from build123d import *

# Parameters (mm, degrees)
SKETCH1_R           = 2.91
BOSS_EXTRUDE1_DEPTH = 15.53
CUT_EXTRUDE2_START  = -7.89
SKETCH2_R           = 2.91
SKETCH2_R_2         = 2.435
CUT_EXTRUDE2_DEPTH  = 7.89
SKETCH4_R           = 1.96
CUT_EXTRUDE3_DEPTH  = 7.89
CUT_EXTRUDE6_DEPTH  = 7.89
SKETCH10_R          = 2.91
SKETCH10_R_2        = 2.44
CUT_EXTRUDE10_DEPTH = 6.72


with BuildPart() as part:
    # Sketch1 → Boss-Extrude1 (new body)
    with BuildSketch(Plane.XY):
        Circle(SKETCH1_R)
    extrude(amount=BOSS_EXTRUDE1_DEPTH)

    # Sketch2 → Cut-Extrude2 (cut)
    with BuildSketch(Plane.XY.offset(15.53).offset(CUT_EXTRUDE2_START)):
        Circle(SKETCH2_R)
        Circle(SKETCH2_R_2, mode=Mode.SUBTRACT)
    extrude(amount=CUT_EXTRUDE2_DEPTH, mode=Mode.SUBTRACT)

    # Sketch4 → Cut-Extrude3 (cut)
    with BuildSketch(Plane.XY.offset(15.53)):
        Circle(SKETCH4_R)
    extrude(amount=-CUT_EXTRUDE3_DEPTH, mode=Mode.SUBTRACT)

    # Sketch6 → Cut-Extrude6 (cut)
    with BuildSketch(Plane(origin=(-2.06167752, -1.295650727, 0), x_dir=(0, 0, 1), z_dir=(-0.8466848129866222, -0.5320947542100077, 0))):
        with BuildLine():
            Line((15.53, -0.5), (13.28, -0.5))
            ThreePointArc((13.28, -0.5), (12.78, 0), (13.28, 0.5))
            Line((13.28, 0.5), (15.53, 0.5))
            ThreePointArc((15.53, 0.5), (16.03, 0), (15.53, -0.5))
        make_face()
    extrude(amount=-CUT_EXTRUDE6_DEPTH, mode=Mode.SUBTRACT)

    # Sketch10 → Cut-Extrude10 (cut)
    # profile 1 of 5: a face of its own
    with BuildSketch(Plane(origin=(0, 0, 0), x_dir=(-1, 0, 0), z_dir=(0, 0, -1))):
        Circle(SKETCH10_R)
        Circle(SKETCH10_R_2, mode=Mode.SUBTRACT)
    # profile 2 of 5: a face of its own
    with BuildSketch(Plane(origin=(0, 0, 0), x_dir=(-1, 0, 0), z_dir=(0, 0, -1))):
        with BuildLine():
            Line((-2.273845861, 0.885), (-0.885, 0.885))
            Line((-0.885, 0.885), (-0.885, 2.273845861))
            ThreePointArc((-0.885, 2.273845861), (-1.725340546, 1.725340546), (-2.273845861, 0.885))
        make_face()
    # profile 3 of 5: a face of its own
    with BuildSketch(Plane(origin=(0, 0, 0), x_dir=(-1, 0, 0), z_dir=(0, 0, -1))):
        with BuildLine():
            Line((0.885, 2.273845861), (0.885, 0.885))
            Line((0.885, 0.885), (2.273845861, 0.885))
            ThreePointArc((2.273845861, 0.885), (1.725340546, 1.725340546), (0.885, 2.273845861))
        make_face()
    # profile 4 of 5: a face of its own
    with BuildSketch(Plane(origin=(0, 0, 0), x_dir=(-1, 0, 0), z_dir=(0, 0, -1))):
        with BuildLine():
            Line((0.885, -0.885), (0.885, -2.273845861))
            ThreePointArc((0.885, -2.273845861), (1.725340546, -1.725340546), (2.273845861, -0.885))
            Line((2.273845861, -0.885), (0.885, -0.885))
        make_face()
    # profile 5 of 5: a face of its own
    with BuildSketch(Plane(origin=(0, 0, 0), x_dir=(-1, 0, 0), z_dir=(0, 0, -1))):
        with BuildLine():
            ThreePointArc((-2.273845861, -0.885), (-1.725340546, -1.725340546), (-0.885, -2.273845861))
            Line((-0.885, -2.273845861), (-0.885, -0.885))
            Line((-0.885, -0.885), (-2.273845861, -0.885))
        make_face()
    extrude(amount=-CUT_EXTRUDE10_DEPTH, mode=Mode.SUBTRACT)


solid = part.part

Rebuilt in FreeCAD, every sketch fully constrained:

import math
import FreeCAD as App
import Part
import Sketcher
from FreeCAD import Vector

doc = App.newDocument("Part")
body = doc.addObject("PartDesign::Body", "Body")

# Sketch on XY plane
sketch1 = body.newObject("Sketcher::SketchObject", "Sketch")
sketch1.AttachmentSupport = (doc.getObject("XY_Plane"), [""])
sketch1.MapMode = "FlatFace"
sketch1.addGeometry(Part.Circle(Vector(0, 0, 0), Vector(0, 0, 1), 2.9), False)
sketch1.addConstraint([
    Sketcher.Constraint("Coincident", 0, 3, -1, 1),
    Sketcher.Constraint("Diameter", 0, 5.82),
])
pad1 = body.newObject("PartDesign::Pad", "Pad")
pad1.Profile = sketch1
pad1.Length = 15.53

# Sketch on XY plane
sketch2 = body.newObject("Sketcher::SketchObject", "Sketch001")
sketch2.AttachmentSupport = (doc.getObject("XY_Plane"), [""])
sketch2.MapMode = "FlatFace"
sketch2.AttachmentOffset = App.Placement(Vector(0, 0, 7.64), App.Rotation())
sketch2.addGeometry([
    Part.Circle(Vector(0, 0, 0), Vector(0, 0, 1), 2.9),
    Part.Circle(Vector(0, 0, 0), Vector(0, 0, 1), 2.4),
], False)
sketch2.addConstraint([
    Sketcher.Constraint("Coincident", 0, 3, -1, 1),
    Sketcher.Constraint("Coincident", 1, 3, -1, 1),
    Sketcher.Constraint("Diameter", 0, 5.82),
    Sketcher.Constraint("Diameter", 1, 4.87),
])
pocket1 = body.newObject("PartDesign::Pocket", "Pocket")
pocket1.Profile = sketch2
pocket1.Length = 7.89
pocket1.Reversed = True

# Sketch on XY plane
sketch3 = body.newObject("Sketcher::SketchObject", "Sketch002")
sketch3.AttachmentSupport = (doc.getObject("XY_Plane"), [""])
sketch3.MapMode = "FlatFace"
sketch3.AttachmentOffset = App.Placement(Vector(0, 0, 15.53), App.Rotation())
sketch3.addGeometry(Part.Circle(Vector(0, 0, 0), Vector(0, 0, 1), 2), False)
sketch3.addConstraint([
    Sketcher.Constraint("Coincident", 0, 3, -1, 1),
    Sketcher.Constraint("Diameter", 0, 3.92),
])
pocket2 = body.newObject("PartDesign::Pocket", "Pocket001")
pocket2.Profile = sketch3
pocket2.Length = 7.89

# Sketch on an angled plane
sketch4 = body.newObject("Sketcher::SketchObject", "Sketch003")
sketch4.Placement = App.Placement(Vector(-2.061678, -1.295651, 0), App.Rotation(Vector(0, 0, 1), Vector(-0.532094754, 0.846684813, 0), Vector(-0.846684813, -0.532094754, 0), "ZXY"))
sketch4.addGeometry([
    Part.LineSegment(Vector(13.3, -0.5, 0), Vector(15.5, -0.5, 0)),
    Part.ArcOfCircle(Part.Circle(Vector(15.5, 0, 0), Vector(0, 0, 1), 0.5), math.radians(-90), math.radians(90)),
    Part.LineSegment(Vector(15.5, 0.5, 0), Vector(13.3, 0.5, 0)),
    Part.ArcOfCircle(Part.Circle(Vector(13.3, 0, 0), Vector(0, 0, 1), 0.5), math.radians(90), math.radians(270)),
], False)
sketch4.addConstraint([
    Sketcher.Constraint("Tangent", 0, 2, 1, 1),
    Sketcher.Constraint("Tangent", 1, 2, 2, 1),
    Sketcher.Constraint("Tangent", 2, 2, 3, 1),
    Sketcher.Constraint("Tangent", 3, 2, 0, 1),
    Sketcher.Constraint("Horizontal", 0),
    Sketcher.Constraint("Horizontal", 2),
    Sketcher.Constraint("PointOnObject", 1, 3, -1),
    Sketcher.Constraint("Radius", 1, 0.5),
    Sketcher.Constraint("DistanceX", 0, 1, 0, 2, 2.25),
    Sketcher.Constraint("DistanceX", -1, 1, 1, 3, 15.53),
])
pocket3 = body.newObject("PartDesign::Pocket", "Pocket002")
pocket3.Profile = sketch4
pocket3.Length = 7.89

# Sketch on XY plane
sketch5 = body.newObject("Sketcher::SketchObject", "Sketch004")
sketch5.AttachmentSupport = (doc.getObject("XY_Plane"), [""])
sketch5.MapMode = "FlatFace"
sketch5.addGeometry([
    Part.Circle(Vector(0, 0, 0), Vector(0, 0, 1), 2.9),  # 0
    Part.ArcOfCircle(Part.Circle(Vector(0, 0, 0), Vector(0, 0, 1), 2.4), math.radians(159), math.radians(201)),  # 1
    Part.LineSegment(Vector(-2.3, -0.9, 0), Vector(-0.9, -0.9, 0)),  # 2
    Part.LineSegment(Vector(-0.9, -0.9, 0), Vector(-0.9, -2.3, 0)),  # 3
    Part.ArcOfCircle(Part.Circle(Vector(0, 0, 0), Vector(0, 0, 1), 2.4), math.radians(-111), math.radians(-69)),  # 4
    Part.LineSegment(Vector(0.9, -2.3, 0), Vector(0.9, -0.9, 0)),  # 5
    Part.LineSegment(Vector(0.9, -0.9, 0), Vector(2.3, -0.9, 0)),  # 6
    Part.ArcOfCircle(Part.Circle(Vector(0, 0, 0), Vector(0, 0, 1), 2.4), math.radians(-21), math.radians(21)),  # 7
    Part.LineSegment(Vector(2.3, 0.9, 0), Vector(0.9, 0.9, 0)),  # 8
    Part.LineSegment(Vector(0.9, 0.9, 0), Vector(0.9, 2.3, 0)),  # 9
    Part.ArcOfCircle(Part.Circle(Vector(0, 0, 0), Vector(0, 0, 1), 2.4), math.radians(69), math.radians(111)),  # 10
    Part.LineSegment(Vector(-0.9, 2.3, 0), Vector(-0.9, 0.9, 0)),  # 11
    Part.LineSegment(Vector(-0.9, 0.9, 0), Vector(-2.3, 0.9, 0)),  # 12
], False)
sketch5.addConstraint([
    Sketcher.Constraint("Coincident", 1, 2, 2, 1),
    Sketcher.Constraint("Coincident", 2, 2, 3, 1),
    Sketcher.Constraint("Coincident", 3, 2, 4, 1),
    Sketcher.Constraint("Coincident", 4, 2, 5, 1),
    Sketcher.Constraint("Coincident", 5, 2, 6, 1),
    Sketcher.Constraint("Coincident", 6, 2, 7, 1),
    Sketcher.Constraint("Coincident", 7, 2, 8, 1),
    Sketcher.Constraint("Coincident", 8, 2, 9, 1),
    Sketcher.Constraint("Coincident", 9, 2, 10, 1),
    Sketcher.Constraint("Coincident", 10, 2, 11, 1),
    Sketcher.Constraint("Coincident", 11, 2, 12, 1),
    Sketcher.Constraint("Coincident", 12, 2, 1, 1),
    Sketcher.Constraint("Horizontal", 2),
    Sketcher.Constraint("Vertical", 3),
    Sketcher.Constraint("Vertical", 5),
    Sketcher.Constraint("Horizontal", 6),
    Sketcher.Constraint("Horizontal", 8),
    Sketcher.Constraint("Vertical", 9),
    Sketcher.Constraint("Vertical", 11),
    Sketcher.Constraint("Horizontal", 12),
    Sketcher.Constraint("Coincident", 0, 3, -1, 1),
    Sketcher.Constraint("Coincident", 1, 3, -1, 1),
    Sketcher.Constraint("Coincident", 4, 3, -1, 1),
    Sketcher.Constraint("Coincident", 7, 3, -1, 1),
    Sketcher.Constraint("Coincident", 10, 3, -1, 1),
    Sketcher.Constraint("Equal", 1, 4),
    Sketcher.Constraint("Equal", 4, 7),
    Sketcher.Constraint("Equal", 7, 10),
    Sketcher.Constraint("Symmetric", 2, 2, 8, 2, -1, 1),
    Sketcher.Constraint("Symmetric", 5, 2, 11, 2, -1, 1),
    Sketcher.Constraint("Symmetric", 2, 2, 5, 2, -2),
    Sketcher.Constraint("Equal", 12, 3),
    Sketcher.Constraint("Diameter", 0, 5.82),
    Sketcher.Constraint("Radius", 1, 2.44),
    Sketcher.Constraint("DistanceX", 3, 2, 4, 2, 1.77),
])
pocket4 = body.newObject("PartDesign::Pocket", "Pocket003")
pocket4.Profile = sketch5
pocket4.Length = 6.72
pocket4.Reversed = True

doc.recompute()
